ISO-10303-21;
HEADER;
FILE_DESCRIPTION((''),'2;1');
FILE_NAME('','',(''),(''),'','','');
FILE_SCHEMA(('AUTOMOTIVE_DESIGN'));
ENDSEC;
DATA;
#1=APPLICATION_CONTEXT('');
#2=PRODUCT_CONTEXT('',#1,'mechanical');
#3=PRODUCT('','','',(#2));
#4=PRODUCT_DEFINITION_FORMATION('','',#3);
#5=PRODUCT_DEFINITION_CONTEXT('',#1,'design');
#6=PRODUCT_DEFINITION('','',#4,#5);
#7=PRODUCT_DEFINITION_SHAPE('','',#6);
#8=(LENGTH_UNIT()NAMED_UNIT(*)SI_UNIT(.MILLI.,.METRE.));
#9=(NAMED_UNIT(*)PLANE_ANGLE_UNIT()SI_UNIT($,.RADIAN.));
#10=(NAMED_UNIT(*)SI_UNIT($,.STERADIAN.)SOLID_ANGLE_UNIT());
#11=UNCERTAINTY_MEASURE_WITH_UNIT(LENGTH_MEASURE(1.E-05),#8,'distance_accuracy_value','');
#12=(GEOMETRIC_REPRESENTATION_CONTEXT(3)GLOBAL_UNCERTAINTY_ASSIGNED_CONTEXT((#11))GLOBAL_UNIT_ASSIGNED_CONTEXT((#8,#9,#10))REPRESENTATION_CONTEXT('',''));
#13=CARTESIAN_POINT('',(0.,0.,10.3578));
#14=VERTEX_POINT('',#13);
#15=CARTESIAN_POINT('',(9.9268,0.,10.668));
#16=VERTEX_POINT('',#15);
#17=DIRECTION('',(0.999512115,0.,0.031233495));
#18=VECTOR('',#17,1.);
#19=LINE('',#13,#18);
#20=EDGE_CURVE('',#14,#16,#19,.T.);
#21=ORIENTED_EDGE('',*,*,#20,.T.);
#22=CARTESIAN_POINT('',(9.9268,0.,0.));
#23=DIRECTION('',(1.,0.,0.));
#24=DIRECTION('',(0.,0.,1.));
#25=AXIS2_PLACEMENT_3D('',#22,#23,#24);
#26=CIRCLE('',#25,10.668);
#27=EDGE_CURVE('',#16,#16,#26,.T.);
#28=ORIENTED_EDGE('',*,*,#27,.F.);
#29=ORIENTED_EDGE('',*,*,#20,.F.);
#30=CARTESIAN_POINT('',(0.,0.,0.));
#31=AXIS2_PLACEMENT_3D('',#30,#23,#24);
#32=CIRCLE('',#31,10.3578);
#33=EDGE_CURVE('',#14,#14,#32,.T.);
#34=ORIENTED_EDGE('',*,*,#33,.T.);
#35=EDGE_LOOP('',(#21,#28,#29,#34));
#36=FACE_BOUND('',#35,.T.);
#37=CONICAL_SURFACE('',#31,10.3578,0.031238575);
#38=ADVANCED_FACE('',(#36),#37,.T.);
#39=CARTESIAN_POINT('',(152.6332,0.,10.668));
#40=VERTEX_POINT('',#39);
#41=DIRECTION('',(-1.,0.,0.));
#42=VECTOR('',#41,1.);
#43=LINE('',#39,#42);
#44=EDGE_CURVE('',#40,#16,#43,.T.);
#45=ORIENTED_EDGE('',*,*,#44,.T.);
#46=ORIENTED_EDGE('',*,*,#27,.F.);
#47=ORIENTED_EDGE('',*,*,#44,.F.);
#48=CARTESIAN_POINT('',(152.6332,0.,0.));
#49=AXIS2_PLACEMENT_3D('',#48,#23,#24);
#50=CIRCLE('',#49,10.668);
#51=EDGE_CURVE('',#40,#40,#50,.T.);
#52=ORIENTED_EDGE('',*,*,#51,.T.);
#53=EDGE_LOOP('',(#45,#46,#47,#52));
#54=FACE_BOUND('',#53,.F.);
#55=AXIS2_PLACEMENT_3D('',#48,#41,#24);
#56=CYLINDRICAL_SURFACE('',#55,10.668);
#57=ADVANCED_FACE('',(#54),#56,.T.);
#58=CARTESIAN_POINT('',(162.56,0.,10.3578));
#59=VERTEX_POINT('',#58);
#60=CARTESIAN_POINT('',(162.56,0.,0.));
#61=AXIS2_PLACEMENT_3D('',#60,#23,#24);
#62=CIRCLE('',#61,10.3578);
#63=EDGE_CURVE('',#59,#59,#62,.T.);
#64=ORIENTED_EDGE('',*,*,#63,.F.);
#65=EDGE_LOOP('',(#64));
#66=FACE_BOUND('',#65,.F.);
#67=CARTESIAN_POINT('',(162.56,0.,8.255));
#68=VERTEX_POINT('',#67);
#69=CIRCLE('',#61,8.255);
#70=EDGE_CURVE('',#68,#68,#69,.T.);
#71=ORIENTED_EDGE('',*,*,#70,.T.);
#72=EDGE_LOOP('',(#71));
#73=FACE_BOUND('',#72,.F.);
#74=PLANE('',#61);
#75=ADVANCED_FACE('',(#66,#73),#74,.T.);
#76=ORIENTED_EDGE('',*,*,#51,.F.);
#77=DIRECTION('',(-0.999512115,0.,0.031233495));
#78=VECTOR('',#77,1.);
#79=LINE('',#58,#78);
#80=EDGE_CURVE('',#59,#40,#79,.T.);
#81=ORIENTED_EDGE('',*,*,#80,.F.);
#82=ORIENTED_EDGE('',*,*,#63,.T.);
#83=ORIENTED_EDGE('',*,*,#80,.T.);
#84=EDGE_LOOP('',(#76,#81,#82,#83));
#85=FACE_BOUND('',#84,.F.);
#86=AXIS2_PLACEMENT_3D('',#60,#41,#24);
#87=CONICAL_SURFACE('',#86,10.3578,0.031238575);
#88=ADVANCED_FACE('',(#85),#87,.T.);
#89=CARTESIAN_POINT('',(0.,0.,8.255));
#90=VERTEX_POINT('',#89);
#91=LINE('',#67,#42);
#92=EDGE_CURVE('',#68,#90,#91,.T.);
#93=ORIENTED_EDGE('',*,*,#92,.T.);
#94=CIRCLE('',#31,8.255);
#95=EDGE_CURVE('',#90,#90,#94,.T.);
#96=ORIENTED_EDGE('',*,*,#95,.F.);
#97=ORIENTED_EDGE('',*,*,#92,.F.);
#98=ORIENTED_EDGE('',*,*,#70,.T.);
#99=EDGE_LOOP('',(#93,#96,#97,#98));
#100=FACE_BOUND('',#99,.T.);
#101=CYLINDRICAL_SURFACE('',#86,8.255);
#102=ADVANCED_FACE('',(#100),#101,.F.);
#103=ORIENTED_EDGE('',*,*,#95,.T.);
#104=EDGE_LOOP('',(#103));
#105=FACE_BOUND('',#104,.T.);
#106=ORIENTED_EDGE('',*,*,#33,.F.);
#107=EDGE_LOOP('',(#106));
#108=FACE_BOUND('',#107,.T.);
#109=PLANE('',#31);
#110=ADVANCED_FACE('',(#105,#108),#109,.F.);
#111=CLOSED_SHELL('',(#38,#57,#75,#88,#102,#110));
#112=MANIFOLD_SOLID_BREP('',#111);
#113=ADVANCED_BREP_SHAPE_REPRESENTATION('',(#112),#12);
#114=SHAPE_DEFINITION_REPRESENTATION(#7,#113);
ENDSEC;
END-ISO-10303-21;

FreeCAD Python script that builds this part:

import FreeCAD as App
import Part
import Sketcher
from FreeCAD import Vector
Q = App.Units.Quantity

doc = App.newDocument("Part")
body = doc.addObject("PartDesign::Body", "Body")

sketch1 = body.newObject("Sketcher::SketchObject", "Sketch")
sketch1.AttachmentSupport = (doc.getObject("XZ_Plane"), [""])
sketch1.MapMode = "FlatFace"
sketch1.addGeometry([
    Part.LineSegment(Vector(162.6, 10.4, 0), Vector(162.6, 8.3, 0)),
    Part.LineSegment(Vector(162.6, 8.3, 0), Vector(0, 8.3, 0)),
    Part.LineSegment(Vector(0, 8.3, 0), Vector(0, 10.4, 0)),
    Part.LineSegment(Vector(0, 10.4, 0), Vector(9.9, 10.7, 0)),
    Part.LineSegment(Vector(9.9, 10.7, 0), Vector(152.6, 10.7, 0)),
    Part.LineSegment(Vector(152.6, 10.7, 0), Vector(162.6, 10.4, 0)),
], False)
sketch1.addConstraint([
    Sketcher.Constraint("Coincident", 0, 2, 1, 1),
    Sketcher.Constraint("Coincident", 1, 2, 2, 1),
    Sketcher.Constraint("Coincident", 2, 2, 3, 1),
    Sketcher.Constraint("Coincident", 3, 2, 4, 1),
    Sketcher.Constraint("Coincident", 4, 2, 5, 1),
    Sketcher.Constraint("Coincident", 5, 2, 0, 1),
    Sketcher.Constraint("Vertical", 0),
    Sketcher.Constraint("Horizontal", 1),
    Sketcher.Constraint("Vertical", 2),
    Sketcher.Constraint("Horizontal", 4),
    Sketcher.Constraint("PointOnObject", 1, 2, -2),
    Sketcher.Constraint("Horizontal", 2, 2, 5, 2),
    Sketcher.Constraint("Equal", 3, 5),
    Sketcher.Constraint("DistanceX", 1, 2, 1, 1, Q("6.4 in")),
    Sketcher.Constraint("Angle", 3, Q("1.7898 deg")),
    Sketcher.Constraint("DistanceY", -1, 1, 3, 2, Q("0.42 in")),
    Sketcher.Constraint("Distance", 3, Q("0.391 in")),
    Sketcher.Constraint("DistanceY", -1, 1, 0, 2, Q("0.325 in")),
])
revolution = body.newObject("PartDesign::Revolution", "Revolution")
revolution.Profile = sketch1
revolution.ReferenceAxis = (sketch1, ["H_Axis"])
revolution.Angle = 360

doc.recompute()
